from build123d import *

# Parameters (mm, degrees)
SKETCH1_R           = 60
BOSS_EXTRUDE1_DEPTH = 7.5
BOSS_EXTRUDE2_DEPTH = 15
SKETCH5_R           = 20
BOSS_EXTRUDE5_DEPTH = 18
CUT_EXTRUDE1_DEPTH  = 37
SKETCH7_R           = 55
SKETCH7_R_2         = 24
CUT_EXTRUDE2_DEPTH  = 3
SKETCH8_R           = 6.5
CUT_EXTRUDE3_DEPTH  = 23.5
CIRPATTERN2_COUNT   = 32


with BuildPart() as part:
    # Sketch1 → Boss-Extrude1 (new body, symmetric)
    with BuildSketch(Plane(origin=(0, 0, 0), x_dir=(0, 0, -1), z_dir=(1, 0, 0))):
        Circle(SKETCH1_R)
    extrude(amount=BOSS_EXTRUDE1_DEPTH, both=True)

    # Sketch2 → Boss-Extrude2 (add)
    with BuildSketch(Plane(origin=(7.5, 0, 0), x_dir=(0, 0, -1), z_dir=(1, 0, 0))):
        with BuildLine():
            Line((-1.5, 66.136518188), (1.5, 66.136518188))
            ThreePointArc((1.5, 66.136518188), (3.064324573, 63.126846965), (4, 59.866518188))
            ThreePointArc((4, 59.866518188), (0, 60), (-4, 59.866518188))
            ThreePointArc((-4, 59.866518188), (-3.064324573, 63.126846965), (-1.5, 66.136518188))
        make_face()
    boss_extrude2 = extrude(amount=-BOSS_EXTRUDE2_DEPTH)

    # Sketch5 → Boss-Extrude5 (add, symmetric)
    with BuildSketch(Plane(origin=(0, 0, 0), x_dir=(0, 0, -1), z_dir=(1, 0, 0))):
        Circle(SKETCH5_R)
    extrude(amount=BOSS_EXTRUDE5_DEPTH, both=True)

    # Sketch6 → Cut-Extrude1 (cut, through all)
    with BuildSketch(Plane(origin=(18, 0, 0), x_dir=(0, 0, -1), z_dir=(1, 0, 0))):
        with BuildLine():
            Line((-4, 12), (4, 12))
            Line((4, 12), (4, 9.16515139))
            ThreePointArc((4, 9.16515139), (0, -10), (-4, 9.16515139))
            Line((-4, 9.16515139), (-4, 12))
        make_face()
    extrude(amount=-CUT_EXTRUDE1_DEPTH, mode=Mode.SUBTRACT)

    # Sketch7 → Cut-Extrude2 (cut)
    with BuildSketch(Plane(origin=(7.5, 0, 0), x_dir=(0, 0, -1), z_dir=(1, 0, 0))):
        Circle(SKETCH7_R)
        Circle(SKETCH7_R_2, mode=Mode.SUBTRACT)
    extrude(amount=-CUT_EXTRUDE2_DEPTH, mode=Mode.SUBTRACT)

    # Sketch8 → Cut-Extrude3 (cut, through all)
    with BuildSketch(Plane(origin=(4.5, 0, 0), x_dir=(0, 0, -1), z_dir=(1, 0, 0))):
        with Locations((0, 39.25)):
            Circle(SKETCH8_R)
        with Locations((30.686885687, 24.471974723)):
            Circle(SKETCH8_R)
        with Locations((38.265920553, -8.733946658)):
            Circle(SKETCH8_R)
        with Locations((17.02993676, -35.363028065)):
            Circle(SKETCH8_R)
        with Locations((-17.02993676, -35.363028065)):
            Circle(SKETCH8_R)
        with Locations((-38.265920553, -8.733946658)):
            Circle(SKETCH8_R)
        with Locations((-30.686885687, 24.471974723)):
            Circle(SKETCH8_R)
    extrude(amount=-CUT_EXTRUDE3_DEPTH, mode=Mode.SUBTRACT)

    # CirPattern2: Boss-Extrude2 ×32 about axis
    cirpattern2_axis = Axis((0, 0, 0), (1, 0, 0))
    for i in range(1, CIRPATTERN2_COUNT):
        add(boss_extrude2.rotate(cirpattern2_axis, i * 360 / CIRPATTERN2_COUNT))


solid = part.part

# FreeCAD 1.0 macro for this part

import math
import FreeCAD as App
import Part
import Sketcher
from FreeCAD import Vector

doc = App.newDocument("Part")
body = doc.addObject("PartDesign::Body", "Body")

# Sketch on YZ plane
sketch1 = doc.addObject("Sketcher::SketchObject", "Sketch")
body.addObject(sketch1)
sketch1.AttachmentSupport = (doc.YZ_Plane, [""])
sketch1.MapMode = "FlatFace"
sketch1.addGeometry(Part.Circle(Vector(0, 0, 0), Vector(0, 0, 1), 60), False)
sketch1.addConstraint(Sketcher.Constraint("Coincident", 0, 3, -1, 1))
sketch1.addConstraint(Sketcher.Constraint("Diameter", 0, 120.0))
pad1 = doc.addObject("PartDesign::Pad", "Pad")
body.addObject(pad1)
pad1.Profile = sketch1
pad1.Length = 15
pad1.Midplane = True

# Sketch on YZ plane
sketch2 = doc.addObject("Sketcher::SketchObject", "Sketch001")
body.addObject(sketch2)
sketch2.AttachmentSupport = (doc.YZ_Plane, [""])
sketch2.MapMode = "FlatFace"
sketch2.AttachmentOffset = App.Placement(Vector(0, 0, 7.5), App.Rotation())
sketch2.addGeometry(Part.LineSegment(Vector(66.1, -1.5, 0), Vector(66.1, 1.5, 0)), False)
sketch2.addGeometry(Part.ArcOfCircle(Part.Circle(Vector(56.8, -12.7, 0), Vector(0, 0, 1), 17), math.radians(57), math.radians(80)), False)
sketch2.addGeometry(Part.ArcOfCircle(Part.Circle(Vector(0, 0, 0), Vector(0, 0, 1), 60), math.radians(-3.82), math.radians(3.82)), False)
sketch2.addGeometry(Part.ArcOfCircle(Part.Circle(Vector(56.8, 12.7, 0), Vector(0, 0, 1), 17), math.radians(-80), math.radians(-57)), False)
sketch2.addConstraint(Sketcher.Constraint("Coincident", 0, 2, 1, 1))
sketch2.addConstraint(Sketcher.Constraint("Coincident", 1, 2, 2, 2))
sketch2.addConstraint(Sketcher.Constraint("Coincident", 2, 1, 3, 1))
sketch2.addConstraint(Sketcher.Constraint("Coincident", 3, 2, 0, 1))
sketch2.addConstraint(Sketcher.Constraint("Vertical", 0))
sketch2.addConstraint(Sketcher.Constraint("Coincident", 2, 3, -1, 1))
sketch2.addConstraint(Sketcher.Constraint("Equal", 1, 3))
sketch2.addConstraint(Sketcher.Constraint("Symmetric", 1, 3, 3, 3, -1))
sketch2.addConstraint(Sketcher.Constraint("Radius", 1, 17.0))
sketch2.addConstraint(Sketcher.Constraint("Radius", 2, 60.0))
sketch2.addConstraint(Sketcher.Constraint("DistanceY", 0, 1, 0, 2, 3.0))
sketch2.addConstraint(Sketcher.Constraint("DistanceY", -1, 1, 1, 2, 4.0))
sketch2.addConstraint(Sketcher.Constraint("DistanceX", 1, 2, 0, 2, 6.27))
pad2 = doc.addObject("PartDesign::Pad", "Pad001")
body.addObject(pad2)
pad2.Profile = sketch2
pad2.Length = 15
pad2.Reversed = True

# Sketch on YZ plane
sketch3 = doc.addObject("Sketcher::SketchObject", "Sketch002")
body.addObject(sketch3)
sketch3.AttachmentSupport = (doc.YZ_Plane, [""])
sketch3.MapMode = "FlatFace"
sketch3.addGeometry(Part.Circle(Vector(0, 0, 0), Vector(0, 0, 1), 20), False)
sketch3.addConstraint(Sketcher.Constraint("Coincident", 0, 3, -1, 1))
sketch3.addConstraint(Sketcher.Constraint("Diameter", 0, 40.0))
pad3 = doc.addObject("PartDesign::Pad", "Pad002")
body.addObject(pad3)
pad3.Profile = sketch3
pad3.Length = 36
pad3.Midplane = True

# Sketch on YZ plane
sketch4 = doc.addObject("Sketcher::SketchObject", "Sketch003")
body.addObject(sketch4)
sketch4.AttachmentSupport = (doc.YZ_Plane, [""])
sketch4.MapMode = "FlatFace"
sketch4.AttachmentOffset = App.Placement(Vector(0, 0, 18), App.Rotation())
sketch4.addGeometry(Part.LineSegment(Vector(12, -4, 0), Vector(12, 4, 0)), False)
sketch4.addGeometry(Part.LineSegment(Vector(12, 4, 0), Vector(9.2, 4, 0)), False)
sketch4.addGeometry(Part.ArcOfCircle(Part.Circle(Vector(0, 0, 0), Vector(0, 0, 1), 10), math.radians(24), math.radians(336)), False)
sketch4.addGeometry(Part.LineSegment(Vector(9.2, -4, 0), Vector(12, -4, 0)), False)
sketch4.addConstraint(Sketcher.Constraint("Coincident", 0, 2, 1, 1))
sketch4.addConstraint(Sketcher.Constraint("Coincident", 1, 2, 2, 1))
sketch4.addConstraint(Sketcher.Constraint("Coincident", 2, 2, 3, 1))
sketch4.addConstraint(Sketcher.Constraint("Coincident", 3, 2, 0, 1))
sketch4.addConstraint(Sketcher.Constraint("Vertical", 0))
sketch4.addConstraint(Sketcher.Constraint("Horizontal", 1))
sketch4.addConstraint(Sketcher.Constraint("Horizontal", 3))
sketch4.addConstraint(Sketcher.Constraint("Coincident", 2, 3, -1, 1))
sketch4.addConstraint(Sketcher.Constraint("Vertical", 1, 2, 2, 2))
sketch4.addConstraint(Sketcher.Constraint("Radius", 2, 10.0))
sketch4.addConstraint(Sketcher.Constraint("DistanceY", 0, 1, 0, 2, 8.0))
sketch4.addConstraint(Sketcher.Constraint("DistanceX", -1, 1, 0, 2, 12.0))
pocket1 = doc.addObject("PartDesign::Pocket", "Pocket")
body.addObject(pocket1)
pocket1.Profile = sketch4
pocket1.Type = "ThroughAll"

# Sketch on YZ plane
sketch5 = doc.addObject("Sketcher::SketchObject", "Sketch004")
body.addObject(sketch5)
sketch5.AttachmentSupport = (doc.YZ_Plane, [""])
sketch5.MapMode = "FlatFace"
sketch5.AttachmentOffset = App.Placement(Vector(0, 0, 7.5), App.Rotation())
sketch5.addGeometry(Part.Circle(Vector(0, 0, 0), Vector(0, 0, 1), 55), False)
sketch5.addGeometry(Part.Circle(Vector(0, 0, 0), Vector(0, 0, 1), 24), False)
sketch5.addConstraint(Sketcher.Constraint("Coincident", 0, 3, -1, 1))
sketch5.addConstraint(Sketcher.Constraint("Coincident", 1, 3, -1, 1))
sketch5.addConstraint(Sketcher.Constraint("Diameter", 0, 110.0))
sketch5.addConstraint(Sketcher.Constraint("Diameter", 1, 48.0))
pocket2 = doc.addObject("PartDesign::Pocket", "Pocket001")
body.addObject(pocket2)
pocket2.Profile = sketch5
pocket2.Length = 3

# Sketch on YZ plane
sketch6 = doc.addObject("Sketcher::SketchObject", "Sketch005")
body.addObject(sketch6)
sketch6.AttachmentSupport = (doc.YZ_Plane, [""])
sketch6.MapMode = "FlatFace"
sketch6.AttachmentOffset = App.Placement(Vector(0, 0, 4.5), App.Rotation())
sketch6.addGeometry(Part.Circle(Vector(39, 0, 0), Vector(0, 0, 1), 6), False)
sketch6.addGeometry(Part.Circle(Vector(24, -31, 0), Vector(0, 0, 1), 6), False)
sketch6.addGeometry(Part.Circle(Vector(-9, -38, 0), Vector(0, 0, 1), 6), False)
sketch6.addGeometry(Part.Circle(Vector(-35, -17, 0), Vector(0, 0, 1), 6), False)
sketch6.addGeometry(Part.Circle(Vector(-35, 17, 0), Vector(0, 0, 1), 6), False)
sketch6.addGeometry(Part.Circle(Vector(-9, 38, 0), Vector(0, 0, 1), 6), False)
sketch6.addGeometry(Part.Circle(Vector(24, 31, 0), Vector(0, 0, 1), 6), False)
sketch6.addConstraint(Sketcher.Constraint("Equal", 0, 1))
sketch6.addConstraint(Sketcher.Constraint("Equal", 1, 2))
sketch6.addConstraint(Sketcher.Constraint("Equal", 2, 3))
sketch6.addConstraint(Sketcher.Constraint("Equal", 3, 4))
sketch6.addConstraint(Sketcher.Constraint("Equal", 4, 5))
sketch6.addConstraint(Sketcher.Constraint("Equal", 5, 6))
sketch6.addConstraint(Sketcher.Constraint("Symmetric", 3, 3, 4, 3, -1))
sketch6.addConstraint(Sketcher.Constraint("Symmetric", 2, 3, 5, 3, -1))
sketch6.addConstraint(Sketcher.Constraint("Symmetric", 1, 3, 6, 3, -1))
sketch6.addConstraint(Sketcher.Constraint("PointOnObject", 0, 3, -1))
sketch6.addConstraint(Sketcher.Constraint("Diameter", 0, 13.0))
sketch6.addConstraint(Sketcher.Constraint("DistanceX", -1, 1, 0, 3, 39.25))
sketch6.addConstraint(Sketcher.Constraint("DistanceY", 2, 3, -1, 1, 38.265921))
sketch6.addConstraint(Sketcher.Constraint("DistanceX", 3, 3, -1, 1, 35.363028))
sketch6.addConstraint(Sketcher.Constraint("DistanceX", 2, 3, 1, 3, 33.205921))
sketch6.addConstraint(Sketcher.Constraint("DistanceX", 3, 3, 2, 3, 26.629081))
sketch6.addConstraint(Sketcher.Constraint("DistanceY", 1, 3, 3, 3, 13.656949))
sketch6.addConstraint(Sketcher.Constraint("DistanceY", 1, 3, 6, 3, 61.373771))
pocket3 = doc.addObject("PartDesign::Pocket", "Pocket002")
body.addObject(pocket3)
pocket3.Profile = sketch6
pocket3.Type = "ThroughAll"
doc.recompute()

polarpattern = doc.addObject("PartDesign::PolarPattern", "PolarPattern")
body.addObject(polarpattern)
polarpattern.Originals = [pad2]
polarpattern.Axis = (doc.X_Axis, [""])
polarpattern.Angle = 360
polarpattern.Occurrences = 32
body.Tip = polarpattern

doc.recompute()
